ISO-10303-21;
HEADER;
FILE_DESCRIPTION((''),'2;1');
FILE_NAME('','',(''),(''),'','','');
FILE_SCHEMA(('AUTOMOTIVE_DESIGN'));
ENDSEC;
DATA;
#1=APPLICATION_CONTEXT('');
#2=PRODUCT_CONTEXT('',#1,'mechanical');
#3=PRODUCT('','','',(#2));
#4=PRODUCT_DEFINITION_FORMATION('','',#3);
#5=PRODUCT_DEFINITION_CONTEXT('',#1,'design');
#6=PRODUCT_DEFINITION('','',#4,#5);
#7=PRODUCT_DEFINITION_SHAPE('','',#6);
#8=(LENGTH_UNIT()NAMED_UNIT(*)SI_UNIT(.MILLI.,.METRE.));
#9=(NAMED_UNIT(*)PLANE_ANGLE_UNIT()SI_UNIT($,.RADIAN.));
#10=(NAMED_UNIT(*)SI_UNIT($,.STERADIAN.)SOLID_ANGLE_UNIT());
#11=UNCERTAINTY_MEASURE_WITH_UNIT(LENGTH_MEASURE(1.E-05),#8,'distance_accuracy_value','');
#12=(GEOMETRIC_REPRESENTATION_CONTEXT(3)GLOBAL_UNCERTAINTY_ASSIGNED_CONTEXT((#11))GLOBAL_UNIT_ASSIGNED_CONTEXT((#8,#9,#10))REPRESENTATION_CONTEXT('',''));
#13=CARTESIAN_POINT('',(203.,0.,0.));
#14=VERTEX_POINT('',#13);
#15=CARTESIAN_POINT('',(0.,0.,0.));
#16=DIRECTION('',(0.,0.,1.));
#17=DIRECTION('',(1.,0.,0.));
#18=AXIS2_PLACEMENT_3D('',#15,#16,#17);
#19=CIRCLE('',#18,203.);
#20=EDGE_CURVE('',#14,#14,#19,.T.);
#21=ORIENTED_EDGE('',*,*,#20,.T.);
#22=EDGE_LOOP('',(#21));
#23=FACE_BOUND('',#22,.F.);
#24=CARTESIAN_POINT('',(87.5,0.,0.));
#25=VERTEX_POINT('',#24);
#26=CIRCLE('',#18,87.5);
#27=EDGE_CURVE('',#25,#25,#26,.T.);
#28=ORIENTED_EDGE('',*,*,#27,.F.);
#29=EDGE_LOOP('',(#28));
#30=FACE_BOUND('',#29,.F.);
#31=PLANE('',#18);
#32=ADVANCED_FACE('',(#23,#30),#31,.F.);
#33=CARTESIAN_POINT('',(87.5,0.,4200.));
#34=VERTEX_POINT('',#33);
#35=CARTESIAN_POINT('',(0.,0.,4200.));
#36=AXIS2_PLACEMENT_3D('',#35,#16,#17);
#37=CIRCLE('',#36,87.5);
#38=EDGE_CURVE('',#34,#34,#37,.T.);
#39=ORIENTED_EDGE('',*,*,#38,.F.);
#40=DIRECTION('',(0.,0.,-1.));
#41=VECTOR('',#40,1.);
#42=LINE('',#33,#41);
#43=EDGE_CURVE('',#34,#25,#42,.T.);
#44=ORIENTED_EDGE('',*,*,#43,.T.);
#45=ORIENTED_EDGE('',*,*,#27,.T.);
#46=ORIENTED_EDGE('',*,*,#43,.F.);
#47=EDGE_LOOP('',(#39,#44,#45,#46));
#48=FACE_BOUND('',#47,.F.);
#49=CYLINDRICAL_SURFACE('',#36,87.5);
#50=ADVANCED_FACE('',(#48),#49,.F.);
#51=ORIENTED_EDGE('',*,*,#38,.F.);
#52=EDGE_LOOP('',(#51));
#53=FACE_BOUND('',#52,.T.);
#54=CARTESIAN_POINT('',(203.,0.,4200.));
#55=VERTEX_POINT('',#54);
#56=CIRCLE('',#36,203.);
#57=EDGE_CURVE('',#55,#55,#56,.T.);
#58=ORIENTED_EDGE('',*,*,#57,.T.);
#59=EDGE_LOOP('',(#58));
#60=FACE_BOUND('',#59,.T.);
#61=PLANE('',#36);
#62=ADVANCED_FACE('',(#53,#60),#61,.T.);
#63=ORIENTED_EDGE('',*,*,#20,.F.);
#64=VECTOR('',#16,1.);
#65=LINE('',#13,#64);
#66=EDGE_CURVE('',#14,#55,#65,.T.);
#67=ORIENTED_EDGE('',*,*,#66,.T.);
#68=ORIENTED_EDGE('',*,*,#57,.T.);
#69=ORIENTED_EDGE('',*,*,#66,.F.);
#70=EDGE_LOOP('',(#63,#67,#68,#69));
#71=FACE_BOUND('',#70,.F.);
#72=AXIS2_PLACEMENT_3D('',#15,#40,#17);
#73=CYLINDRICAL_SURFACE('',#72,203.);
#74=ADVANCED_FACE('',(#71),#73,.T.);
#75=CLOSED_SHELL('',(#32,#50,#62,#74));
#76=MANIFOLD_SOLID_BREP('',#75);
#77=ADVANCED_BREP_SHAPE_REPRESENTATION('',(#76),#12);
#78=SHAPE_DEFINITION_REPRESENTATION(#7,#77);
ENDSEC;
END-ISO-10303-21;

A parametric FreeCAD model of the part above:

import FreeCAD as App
import Part
import Sketcher

V = App.Vector
Q = App.Units.Quantity

doc = App.newDocument("Part")
body = doc.addObject("PartDesign::Body", "Body")

# Sketch on XY plane
sketch1 = doc.addObject("Sketcher::SketchObject", "Sketch")
body.addObject(sketch1)
sketch1.AttachmentSupport = (doc.XY_Plane, [""])
sketch1.MapMode = "FlatFace"
sketch1.addGeometry(Part.Circle(V(0, 0, 0), V(0, 0, 1), 203), False)
sketch1.addConstraint(Sketcher.Constraint("Coincident", 0, 3, -1, 1))
sketch1.addConstraint(Sketcher.Constraint("Diameter", 0, Q("406 mm")))
pad1 = doc.addObject("PartDesign::Pad", "Pad")
body.addObject(pad1)
pad1.Profile = sketch1
pad1.Length = 4200

# Sketch on XY plane
sketch2 = doc.addObject("Sketcher::SketchObject", "Sketch001")
body.addObject(sketch2)
sketch2.AttachmentSupport = (doc.XY_Plane, [""])
sketch2.MapMode = "FlatFace"
sketch2.AttachmentOffset = App.Placement(V(0, 0, 4200), App.Rotation())
sketch2.addGeometry(Part.Circle(V(0, 0, 0), V(0, 0, 1), 87.5), False)
sketch2.addConstraint(Sketcher.Constraint("Coincident", 0, 3, -1, 1))
sketch2.addConstraint(Sketcher.Constraint("Diameter", 0, Q("175 mm")))
pocket1 = doc.addObject("PartDesign::Pocket", "Pocket")
body.addObject(pocket1)
pocket1.Profile = sketch2
pocket1.Type = "ThroughAll"

doc.recompute()
